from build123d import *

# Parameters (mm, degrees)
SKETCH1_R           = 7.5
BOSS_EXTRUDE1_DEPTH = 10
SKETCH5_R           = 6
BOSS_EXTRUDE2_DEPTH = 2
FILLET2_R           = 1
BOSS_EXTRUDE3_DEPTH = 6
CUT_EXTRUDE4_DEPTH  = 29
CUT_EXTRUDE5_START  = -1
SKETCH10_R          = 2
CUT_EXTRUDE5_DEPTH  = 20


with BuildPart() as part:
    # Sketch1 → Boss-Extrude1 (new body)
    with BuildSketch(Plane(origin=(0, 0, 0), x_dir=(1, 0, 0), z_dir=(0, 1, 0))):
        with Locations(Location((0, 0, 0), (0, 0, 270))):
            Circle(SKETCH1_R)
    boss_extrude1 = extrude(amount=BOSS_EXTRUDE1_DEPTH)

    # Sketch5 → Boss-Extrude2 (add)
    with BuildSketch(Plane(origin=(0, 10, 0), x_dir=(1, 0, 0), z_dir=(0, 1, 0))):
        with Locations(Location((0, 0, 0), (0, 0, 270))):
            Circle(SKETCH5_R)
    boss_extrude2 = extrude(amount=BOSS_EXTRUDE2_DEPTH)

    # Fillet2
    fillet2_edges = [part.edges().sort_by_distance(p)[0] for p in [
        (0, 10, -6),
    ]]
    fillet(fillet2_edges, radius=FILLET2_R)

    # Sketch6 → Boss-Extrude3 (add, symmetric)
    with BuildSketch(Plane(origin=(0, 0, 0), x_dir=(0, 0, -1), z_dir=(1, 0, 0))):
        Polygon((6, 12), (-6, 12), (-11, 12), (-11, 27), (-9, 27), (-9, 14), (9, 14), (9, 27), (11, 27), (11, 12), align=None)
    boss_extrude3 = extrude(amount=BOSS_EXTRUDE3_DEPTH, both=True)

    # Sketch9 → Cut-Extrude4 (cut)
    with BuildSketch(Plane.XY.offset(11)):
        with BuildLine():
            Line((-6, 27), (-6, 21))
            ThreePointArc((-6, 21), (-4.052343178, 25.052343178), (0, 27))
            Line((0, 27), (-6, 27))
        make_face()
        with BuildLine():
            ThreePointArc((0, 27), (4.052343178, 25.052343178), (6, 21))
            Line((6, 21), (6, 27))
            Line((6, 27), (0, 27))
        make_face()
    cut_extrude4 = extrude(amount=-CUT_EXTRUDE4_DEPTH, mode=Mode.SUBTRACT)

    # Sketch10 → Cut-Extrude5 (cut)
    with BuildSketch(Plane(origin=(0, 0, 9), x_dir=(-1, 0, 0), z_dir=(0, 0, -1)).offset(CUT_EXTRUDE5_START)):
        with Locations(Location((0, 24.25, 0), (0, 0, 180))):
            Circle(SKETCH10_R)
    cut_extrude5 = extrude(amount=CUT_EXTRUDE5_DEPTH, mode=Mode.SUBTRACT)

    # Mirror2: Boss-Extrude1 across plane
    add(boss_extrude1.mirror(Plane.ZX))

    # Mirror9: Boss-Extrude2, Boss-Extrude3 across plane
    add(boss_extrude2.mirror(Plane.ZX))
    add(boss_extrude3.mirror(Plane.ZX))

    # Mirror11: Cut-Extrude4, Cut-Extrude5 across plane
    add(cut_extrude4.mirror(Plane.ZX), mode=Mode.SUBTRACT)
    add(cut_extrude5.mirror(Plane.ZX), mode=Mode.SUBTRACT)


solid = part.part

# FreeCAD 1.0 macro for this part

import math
import FreeCAD as App
import Part
import Sketcher

V = App.Vector


def edges_at(feature, points):
    """Names of the edges that pass closest to the given points."""
    edges = feature.Shape.Edges
    near = lambda p: min(range(len(edges)), key=lambda i: edges[i].distToShape(Part.Vertex(*p))[0])
    return sorted({f"Edge{near(p) + 1}" for p in points})

doc = App.newDocument("Part")
body = doc.addObject("PartDesign::Body", "Body")

# Sketch on XZ plane
sketch1 = body.newObject("Sketcher::SketchObject", "Sketch")
sketch1.AttachmentSupport = (doc.getObject("XZ_Plane"), [""])
sketch1.MapMode = "FlatFace"
sketch1.addGeometry(Part.Circle(V(0, 0, 0), V(0, 0, 1), 8), False)
sketch1.addConstraint(Sketcher.Constraint("Coincident", 0, 3, -1, 1))
sketch1.addConstraint(Sketcher.Constraint("Diameter", 0, 15.0))
pad1 = body.newObject("PartDesign::Pad", "Pad")
pad1.Profile = sketch1
pad1.Length = 10
pad1.Reversed = True

# Sketch on XZ plane
sketch2 = body.newObject("Sketcher::SketchObject", "Sketch001")
sketch2.AttachmentSupport = (doc.getObject("XZ_Plane"), [""])
sketch2.MapMode = "FlatFace"
sketch2.AttachmentOffset = App.Placement(V(0, 0, -10), App.Rotation())
sketch2.addGeometry(Part.Circle(V(0, 0, 0), V(0, 0, 1), 6), False)
sketch2.addConstraint(Sketcher.Constraint("Coincident", 0, 3, -1, 1))
sketch2.addConstraint(Sketcher.Constraint("Diameter", 0, 12.0))
pad2 = body.newObject("PartDesign::Pad", "Pad001")
pad2.Profile = sketch2
pad2.Length = 2
pad2.Reversed = True
doc.recompute()

fillet = body.newObject("PartDesign::Fillet", "Fillet")
fillet.Base = (pad2, edges_at(pad2, [(0, 10, -6)]))
fillet.Radius = 1

# Sketch on YZ plane
sketch3 = body.newObject("Sketcher::SketchObject", "Sketch002")
sketch3.AttachmentSupport = (doc.getObject("YZ_Plane"), [""])
sketch3.MapMode = "FlatFace"
sketch3.addGeometry(Part.LineSegment(V(12, 11, 0), V(12, -11, 0)), False)
sketch3.addGeometry(Part.LineSegment(V(12, -11, 0), V(27, -11, 0)), False)
sketch3.addGeometry(Part.LineSegment(V(27, -11, 0), V(27, -9, 0)), False)
sketch3.addGeometry(Part.LineSegment(V(27, -9, 0), V(14, -9, 0)), False)
sketch3.addGeometry(Part.LineSegment(V(14, -9, 0), V(14, 9, 0)), False)
sketch3.addGeometry(Part.LineSegment(V(14, 9, 0), V(27, 9, 0)), False)
sketch3.addGeometry(Part.LineSegment(V(27, 9, 0), V(27, 11, 0)), False)
sketch3.addGeometry(Part.LineSegment(V(27, 11, 0), V(12, 11, 0)), False)
sketch3.addConstraint(Sketcher.Constraint("Coincident", 0, 2, 1, 1))
sketch3.addConstraint(Sketcher.Constraint("Coincident", 1, 2, 2, 1))
sketch3.addConstraint(Sketcher.Constraint("Coincident", 2, 2, 3, 1))
sketch3.addConstraint(Sketcher.Constraint("Coincident", 3, 2, 4, 1))
sketch3.addConstraint(Sketcher.Constraint("Coincident", 4, 2, 5, 1))
sketch3.addConstraint(Sketcher.Constraint("Coincident", 5, 2, 6, 1))
sketch3.addConstraint(Sketcher.Constraint("Coincident", 6, 2, 7, 1))
sketch3.addConstraint(Sketcher.Constraint("Coincident", 7, 2, 0, 1))
sketch3.addConstraint(Sketcher.Constraint("Vertical", 0))
sketch3.addConstraint(Sketcher.Constraint("Horizontal", 1))
sketch3.addConstraint(Sketcher.Constraint("Vertical", 2))
sketch3.addConstraint(Sketcher.Constraint("Horizontal", 3))
sketch3.addConstraint(Sketcher.Constraint("Vertical", 4))
sketch3.addConstraint(Sketcher.Constraint("Horizontal", 5))
sketch3.addConstraint(Sketcher.Constraint("Vertical", 6))
sketch3.addConstraint(Sketcher.Constraint("Horizontal", 7))
sketch3.addConstraint(Sketcher.Constraint("Symmetric", 2, 2, 5, 2, -1))
sketch3.addConstraint(Sketcher.Constraint("Equal", 2, 6))
sketch3.addConstraint(Sketcher.Constraint("DistanceX", 1, 1, 1, 2, 15.0))
sketch3.addConstraint(Sketcher.Constraint("DistanceX", 3, 2, 3, 1, 13.0))
sketch3.addConstraint(Sketcher.Constraint("DistanceY", 0, 2, 0, 1, 22.0))
sketch3.addConstraint(Sketcher.Constraint("DistanceY", 2, 1, 2, 2, 2.0))
sketch3.addConstraint(Sketcher.Constraint("DistanceX", -1, 1, 0, 2, 12.0))
pad3 = body.newObject("PartDesign::Pad", "Pad002")
pad3.Profile = sketch3
pad3.Length = 12
pad3.Midplane = True

# Sketch on XY plane
sketch4 = body.newObject("Sketcher::SketchObject", "Sketch003")
sketch4.AttachmentSupport = (doc.getObject("XY_Plane"), [""])
sketch4.MapMode = "FlatFace"
sketch4.AttachmentOffset = App.Placement(V(0, 0, 11), App.Rotation())
sketch4.addGeometry(Part.LineSegment(V(-6, 27, 0), V(-6, 21, 0)), False)
sketch4.addGeometry(Part.ArcOfCircle(Part.Circle(V(1, 20, 0), V(0, 0, 1), 7), math.radians(96), math.radians(174)), False)
sketch4.addGeometry(Part.LineSegment(V(0, 27, 0), V(-6, 27, 0)), False)
sketch4.addGeometry(Part.ArcOfCircle(Part.Circle(V(-1, 20, 0), V(0, 0, 1), 7), math.radians(6), math.radians(84)), False)
sketch4.addGeometry(Part.LineSegment(V(6, 21, 0), V(6, 27, 0)), False)
sketch4.addGeometry(Part.LineSegment(V(6, 27, 0), V(0, 27, 0)), False)
sketch4.addConstraint(Sketcher.Constraint("Coincident", 0, 2, 1, 2))
sketch4.addConstraint(Sketcher.Constraint("Coincident", 1, 1, 2, 1))
sketch4.addConstraint(Sketcher.Constraint("Coincident", 2, 2, 0, 1))
sketch4.addConstraint(Sketcher.Constraint("Coincident", 3, 1, 4, 1))
sketch4.addConstraint(Sketcher.Constraint("Coincident", 4, 2, 5, 1))
sketch4.addConstraint(Sketcher.Constraint("Coincident", 5, 2, 3, 2))
sketch4.addConstraint(Sketcher.Constraint("Vertical", 0))
sketch4.addConstraint(Sketcher.Constraint("Horizontal", 2))
sketch4.addConstraint(Sketcher.Constraint("Vertical", 4))
sketch4.addConstraint(Sketcher.Constraint("Horizontal", 5))
sketch4.addConstraint(Sketcher.Constraint("Coincident", 5, 2, 1, 1))
sketch4.addConstraint(Sketcher.Constraint("Equal", 1, 3))
sketch4.addConstraint(Sketcher.Constraint("Symmetric", 1, 3, 3, 3, -2))
sketch4.addConstraint(Sketcher.Constraint("Horizontal", 0, 2, 3, 1))
sketch4.addConstraint(Sketcher.Constraint("Equal", 5, 0))
sketch4.addConstraint(Sketcher.Constraint("DistanceX", 2, 2, 2, 1, 6.0))
sketch4.addConstraint(Sketcher.Constraint("DistanceY", -1, 1, 0, 2, 21.0))
sketch4.addConstraint(Sketcher.Constraint("DistanceX", 3, 3, 1, 3, 1.5))
pocket1 = body.newObject("PartDesign::Pocket", "Pocket")
pocket1.Profile = sketch4
pocket1.Length = 29

# Sketch on XY plane
sketch5 = body.newObject("Sketcher::SketchObject", "Sketch004")
sketch5.AttachmentSupport = (doc.getObject("XY_Plane"), [""])
sketch5.MapMode = "FlatFace"
sketch5.AttachmentOffset = App.Placement(V(0, 0, 10), App.Rotation())
sketch5.addGeometry(Part.Circle(V(0, 24.2, 0), V(0, 0, 1), 2), False)
sketch5.addConstraint(Sketcher.Constraint("PointOnObject", 0, 3, -2))
sketch5.addConstraint(Sketcher.Constraint("Diameter", 0, 4.0))
sketch5.addConstraint(Sketcher.Constraint("DistanceY", -1, 1, 0, 3, 24.25))
pocket2 = body.newObject("PartDesign::Pocket", "Pocket001")
pocket2.Profile = sketch5
pocket2.Length = 20
doc.recompute()

mirrored = body.newObject("PartDesign::Mirrored", "Mirrored")
mirrored.Originals = [pad1]
mirrored.MirrorPlane = (doc.getObject("XZ_Plane"), [""])
body.Tip = mirrored
doc.recompute()

mirrored2 = body.newObject("PartDesign::Mirrored", "Mirrored001")
mirrored2.Originals = [pad2, pad3]
mirrored2.MirrorPlane = (doc.getObject("XZ_Plane"), [""])
body.Tip = mirrored2
doc.recompute()

mirrored3 = body.newObject("PartDesign::Mirrored", "Mirrored002")
mirrored3.Originals = [pocket1, pocket2]
mirrored3.MirrorPlane = (doc.getObject("XZ_Plane"), [""])
body.Tip = mirrored3

doc.recompute()
